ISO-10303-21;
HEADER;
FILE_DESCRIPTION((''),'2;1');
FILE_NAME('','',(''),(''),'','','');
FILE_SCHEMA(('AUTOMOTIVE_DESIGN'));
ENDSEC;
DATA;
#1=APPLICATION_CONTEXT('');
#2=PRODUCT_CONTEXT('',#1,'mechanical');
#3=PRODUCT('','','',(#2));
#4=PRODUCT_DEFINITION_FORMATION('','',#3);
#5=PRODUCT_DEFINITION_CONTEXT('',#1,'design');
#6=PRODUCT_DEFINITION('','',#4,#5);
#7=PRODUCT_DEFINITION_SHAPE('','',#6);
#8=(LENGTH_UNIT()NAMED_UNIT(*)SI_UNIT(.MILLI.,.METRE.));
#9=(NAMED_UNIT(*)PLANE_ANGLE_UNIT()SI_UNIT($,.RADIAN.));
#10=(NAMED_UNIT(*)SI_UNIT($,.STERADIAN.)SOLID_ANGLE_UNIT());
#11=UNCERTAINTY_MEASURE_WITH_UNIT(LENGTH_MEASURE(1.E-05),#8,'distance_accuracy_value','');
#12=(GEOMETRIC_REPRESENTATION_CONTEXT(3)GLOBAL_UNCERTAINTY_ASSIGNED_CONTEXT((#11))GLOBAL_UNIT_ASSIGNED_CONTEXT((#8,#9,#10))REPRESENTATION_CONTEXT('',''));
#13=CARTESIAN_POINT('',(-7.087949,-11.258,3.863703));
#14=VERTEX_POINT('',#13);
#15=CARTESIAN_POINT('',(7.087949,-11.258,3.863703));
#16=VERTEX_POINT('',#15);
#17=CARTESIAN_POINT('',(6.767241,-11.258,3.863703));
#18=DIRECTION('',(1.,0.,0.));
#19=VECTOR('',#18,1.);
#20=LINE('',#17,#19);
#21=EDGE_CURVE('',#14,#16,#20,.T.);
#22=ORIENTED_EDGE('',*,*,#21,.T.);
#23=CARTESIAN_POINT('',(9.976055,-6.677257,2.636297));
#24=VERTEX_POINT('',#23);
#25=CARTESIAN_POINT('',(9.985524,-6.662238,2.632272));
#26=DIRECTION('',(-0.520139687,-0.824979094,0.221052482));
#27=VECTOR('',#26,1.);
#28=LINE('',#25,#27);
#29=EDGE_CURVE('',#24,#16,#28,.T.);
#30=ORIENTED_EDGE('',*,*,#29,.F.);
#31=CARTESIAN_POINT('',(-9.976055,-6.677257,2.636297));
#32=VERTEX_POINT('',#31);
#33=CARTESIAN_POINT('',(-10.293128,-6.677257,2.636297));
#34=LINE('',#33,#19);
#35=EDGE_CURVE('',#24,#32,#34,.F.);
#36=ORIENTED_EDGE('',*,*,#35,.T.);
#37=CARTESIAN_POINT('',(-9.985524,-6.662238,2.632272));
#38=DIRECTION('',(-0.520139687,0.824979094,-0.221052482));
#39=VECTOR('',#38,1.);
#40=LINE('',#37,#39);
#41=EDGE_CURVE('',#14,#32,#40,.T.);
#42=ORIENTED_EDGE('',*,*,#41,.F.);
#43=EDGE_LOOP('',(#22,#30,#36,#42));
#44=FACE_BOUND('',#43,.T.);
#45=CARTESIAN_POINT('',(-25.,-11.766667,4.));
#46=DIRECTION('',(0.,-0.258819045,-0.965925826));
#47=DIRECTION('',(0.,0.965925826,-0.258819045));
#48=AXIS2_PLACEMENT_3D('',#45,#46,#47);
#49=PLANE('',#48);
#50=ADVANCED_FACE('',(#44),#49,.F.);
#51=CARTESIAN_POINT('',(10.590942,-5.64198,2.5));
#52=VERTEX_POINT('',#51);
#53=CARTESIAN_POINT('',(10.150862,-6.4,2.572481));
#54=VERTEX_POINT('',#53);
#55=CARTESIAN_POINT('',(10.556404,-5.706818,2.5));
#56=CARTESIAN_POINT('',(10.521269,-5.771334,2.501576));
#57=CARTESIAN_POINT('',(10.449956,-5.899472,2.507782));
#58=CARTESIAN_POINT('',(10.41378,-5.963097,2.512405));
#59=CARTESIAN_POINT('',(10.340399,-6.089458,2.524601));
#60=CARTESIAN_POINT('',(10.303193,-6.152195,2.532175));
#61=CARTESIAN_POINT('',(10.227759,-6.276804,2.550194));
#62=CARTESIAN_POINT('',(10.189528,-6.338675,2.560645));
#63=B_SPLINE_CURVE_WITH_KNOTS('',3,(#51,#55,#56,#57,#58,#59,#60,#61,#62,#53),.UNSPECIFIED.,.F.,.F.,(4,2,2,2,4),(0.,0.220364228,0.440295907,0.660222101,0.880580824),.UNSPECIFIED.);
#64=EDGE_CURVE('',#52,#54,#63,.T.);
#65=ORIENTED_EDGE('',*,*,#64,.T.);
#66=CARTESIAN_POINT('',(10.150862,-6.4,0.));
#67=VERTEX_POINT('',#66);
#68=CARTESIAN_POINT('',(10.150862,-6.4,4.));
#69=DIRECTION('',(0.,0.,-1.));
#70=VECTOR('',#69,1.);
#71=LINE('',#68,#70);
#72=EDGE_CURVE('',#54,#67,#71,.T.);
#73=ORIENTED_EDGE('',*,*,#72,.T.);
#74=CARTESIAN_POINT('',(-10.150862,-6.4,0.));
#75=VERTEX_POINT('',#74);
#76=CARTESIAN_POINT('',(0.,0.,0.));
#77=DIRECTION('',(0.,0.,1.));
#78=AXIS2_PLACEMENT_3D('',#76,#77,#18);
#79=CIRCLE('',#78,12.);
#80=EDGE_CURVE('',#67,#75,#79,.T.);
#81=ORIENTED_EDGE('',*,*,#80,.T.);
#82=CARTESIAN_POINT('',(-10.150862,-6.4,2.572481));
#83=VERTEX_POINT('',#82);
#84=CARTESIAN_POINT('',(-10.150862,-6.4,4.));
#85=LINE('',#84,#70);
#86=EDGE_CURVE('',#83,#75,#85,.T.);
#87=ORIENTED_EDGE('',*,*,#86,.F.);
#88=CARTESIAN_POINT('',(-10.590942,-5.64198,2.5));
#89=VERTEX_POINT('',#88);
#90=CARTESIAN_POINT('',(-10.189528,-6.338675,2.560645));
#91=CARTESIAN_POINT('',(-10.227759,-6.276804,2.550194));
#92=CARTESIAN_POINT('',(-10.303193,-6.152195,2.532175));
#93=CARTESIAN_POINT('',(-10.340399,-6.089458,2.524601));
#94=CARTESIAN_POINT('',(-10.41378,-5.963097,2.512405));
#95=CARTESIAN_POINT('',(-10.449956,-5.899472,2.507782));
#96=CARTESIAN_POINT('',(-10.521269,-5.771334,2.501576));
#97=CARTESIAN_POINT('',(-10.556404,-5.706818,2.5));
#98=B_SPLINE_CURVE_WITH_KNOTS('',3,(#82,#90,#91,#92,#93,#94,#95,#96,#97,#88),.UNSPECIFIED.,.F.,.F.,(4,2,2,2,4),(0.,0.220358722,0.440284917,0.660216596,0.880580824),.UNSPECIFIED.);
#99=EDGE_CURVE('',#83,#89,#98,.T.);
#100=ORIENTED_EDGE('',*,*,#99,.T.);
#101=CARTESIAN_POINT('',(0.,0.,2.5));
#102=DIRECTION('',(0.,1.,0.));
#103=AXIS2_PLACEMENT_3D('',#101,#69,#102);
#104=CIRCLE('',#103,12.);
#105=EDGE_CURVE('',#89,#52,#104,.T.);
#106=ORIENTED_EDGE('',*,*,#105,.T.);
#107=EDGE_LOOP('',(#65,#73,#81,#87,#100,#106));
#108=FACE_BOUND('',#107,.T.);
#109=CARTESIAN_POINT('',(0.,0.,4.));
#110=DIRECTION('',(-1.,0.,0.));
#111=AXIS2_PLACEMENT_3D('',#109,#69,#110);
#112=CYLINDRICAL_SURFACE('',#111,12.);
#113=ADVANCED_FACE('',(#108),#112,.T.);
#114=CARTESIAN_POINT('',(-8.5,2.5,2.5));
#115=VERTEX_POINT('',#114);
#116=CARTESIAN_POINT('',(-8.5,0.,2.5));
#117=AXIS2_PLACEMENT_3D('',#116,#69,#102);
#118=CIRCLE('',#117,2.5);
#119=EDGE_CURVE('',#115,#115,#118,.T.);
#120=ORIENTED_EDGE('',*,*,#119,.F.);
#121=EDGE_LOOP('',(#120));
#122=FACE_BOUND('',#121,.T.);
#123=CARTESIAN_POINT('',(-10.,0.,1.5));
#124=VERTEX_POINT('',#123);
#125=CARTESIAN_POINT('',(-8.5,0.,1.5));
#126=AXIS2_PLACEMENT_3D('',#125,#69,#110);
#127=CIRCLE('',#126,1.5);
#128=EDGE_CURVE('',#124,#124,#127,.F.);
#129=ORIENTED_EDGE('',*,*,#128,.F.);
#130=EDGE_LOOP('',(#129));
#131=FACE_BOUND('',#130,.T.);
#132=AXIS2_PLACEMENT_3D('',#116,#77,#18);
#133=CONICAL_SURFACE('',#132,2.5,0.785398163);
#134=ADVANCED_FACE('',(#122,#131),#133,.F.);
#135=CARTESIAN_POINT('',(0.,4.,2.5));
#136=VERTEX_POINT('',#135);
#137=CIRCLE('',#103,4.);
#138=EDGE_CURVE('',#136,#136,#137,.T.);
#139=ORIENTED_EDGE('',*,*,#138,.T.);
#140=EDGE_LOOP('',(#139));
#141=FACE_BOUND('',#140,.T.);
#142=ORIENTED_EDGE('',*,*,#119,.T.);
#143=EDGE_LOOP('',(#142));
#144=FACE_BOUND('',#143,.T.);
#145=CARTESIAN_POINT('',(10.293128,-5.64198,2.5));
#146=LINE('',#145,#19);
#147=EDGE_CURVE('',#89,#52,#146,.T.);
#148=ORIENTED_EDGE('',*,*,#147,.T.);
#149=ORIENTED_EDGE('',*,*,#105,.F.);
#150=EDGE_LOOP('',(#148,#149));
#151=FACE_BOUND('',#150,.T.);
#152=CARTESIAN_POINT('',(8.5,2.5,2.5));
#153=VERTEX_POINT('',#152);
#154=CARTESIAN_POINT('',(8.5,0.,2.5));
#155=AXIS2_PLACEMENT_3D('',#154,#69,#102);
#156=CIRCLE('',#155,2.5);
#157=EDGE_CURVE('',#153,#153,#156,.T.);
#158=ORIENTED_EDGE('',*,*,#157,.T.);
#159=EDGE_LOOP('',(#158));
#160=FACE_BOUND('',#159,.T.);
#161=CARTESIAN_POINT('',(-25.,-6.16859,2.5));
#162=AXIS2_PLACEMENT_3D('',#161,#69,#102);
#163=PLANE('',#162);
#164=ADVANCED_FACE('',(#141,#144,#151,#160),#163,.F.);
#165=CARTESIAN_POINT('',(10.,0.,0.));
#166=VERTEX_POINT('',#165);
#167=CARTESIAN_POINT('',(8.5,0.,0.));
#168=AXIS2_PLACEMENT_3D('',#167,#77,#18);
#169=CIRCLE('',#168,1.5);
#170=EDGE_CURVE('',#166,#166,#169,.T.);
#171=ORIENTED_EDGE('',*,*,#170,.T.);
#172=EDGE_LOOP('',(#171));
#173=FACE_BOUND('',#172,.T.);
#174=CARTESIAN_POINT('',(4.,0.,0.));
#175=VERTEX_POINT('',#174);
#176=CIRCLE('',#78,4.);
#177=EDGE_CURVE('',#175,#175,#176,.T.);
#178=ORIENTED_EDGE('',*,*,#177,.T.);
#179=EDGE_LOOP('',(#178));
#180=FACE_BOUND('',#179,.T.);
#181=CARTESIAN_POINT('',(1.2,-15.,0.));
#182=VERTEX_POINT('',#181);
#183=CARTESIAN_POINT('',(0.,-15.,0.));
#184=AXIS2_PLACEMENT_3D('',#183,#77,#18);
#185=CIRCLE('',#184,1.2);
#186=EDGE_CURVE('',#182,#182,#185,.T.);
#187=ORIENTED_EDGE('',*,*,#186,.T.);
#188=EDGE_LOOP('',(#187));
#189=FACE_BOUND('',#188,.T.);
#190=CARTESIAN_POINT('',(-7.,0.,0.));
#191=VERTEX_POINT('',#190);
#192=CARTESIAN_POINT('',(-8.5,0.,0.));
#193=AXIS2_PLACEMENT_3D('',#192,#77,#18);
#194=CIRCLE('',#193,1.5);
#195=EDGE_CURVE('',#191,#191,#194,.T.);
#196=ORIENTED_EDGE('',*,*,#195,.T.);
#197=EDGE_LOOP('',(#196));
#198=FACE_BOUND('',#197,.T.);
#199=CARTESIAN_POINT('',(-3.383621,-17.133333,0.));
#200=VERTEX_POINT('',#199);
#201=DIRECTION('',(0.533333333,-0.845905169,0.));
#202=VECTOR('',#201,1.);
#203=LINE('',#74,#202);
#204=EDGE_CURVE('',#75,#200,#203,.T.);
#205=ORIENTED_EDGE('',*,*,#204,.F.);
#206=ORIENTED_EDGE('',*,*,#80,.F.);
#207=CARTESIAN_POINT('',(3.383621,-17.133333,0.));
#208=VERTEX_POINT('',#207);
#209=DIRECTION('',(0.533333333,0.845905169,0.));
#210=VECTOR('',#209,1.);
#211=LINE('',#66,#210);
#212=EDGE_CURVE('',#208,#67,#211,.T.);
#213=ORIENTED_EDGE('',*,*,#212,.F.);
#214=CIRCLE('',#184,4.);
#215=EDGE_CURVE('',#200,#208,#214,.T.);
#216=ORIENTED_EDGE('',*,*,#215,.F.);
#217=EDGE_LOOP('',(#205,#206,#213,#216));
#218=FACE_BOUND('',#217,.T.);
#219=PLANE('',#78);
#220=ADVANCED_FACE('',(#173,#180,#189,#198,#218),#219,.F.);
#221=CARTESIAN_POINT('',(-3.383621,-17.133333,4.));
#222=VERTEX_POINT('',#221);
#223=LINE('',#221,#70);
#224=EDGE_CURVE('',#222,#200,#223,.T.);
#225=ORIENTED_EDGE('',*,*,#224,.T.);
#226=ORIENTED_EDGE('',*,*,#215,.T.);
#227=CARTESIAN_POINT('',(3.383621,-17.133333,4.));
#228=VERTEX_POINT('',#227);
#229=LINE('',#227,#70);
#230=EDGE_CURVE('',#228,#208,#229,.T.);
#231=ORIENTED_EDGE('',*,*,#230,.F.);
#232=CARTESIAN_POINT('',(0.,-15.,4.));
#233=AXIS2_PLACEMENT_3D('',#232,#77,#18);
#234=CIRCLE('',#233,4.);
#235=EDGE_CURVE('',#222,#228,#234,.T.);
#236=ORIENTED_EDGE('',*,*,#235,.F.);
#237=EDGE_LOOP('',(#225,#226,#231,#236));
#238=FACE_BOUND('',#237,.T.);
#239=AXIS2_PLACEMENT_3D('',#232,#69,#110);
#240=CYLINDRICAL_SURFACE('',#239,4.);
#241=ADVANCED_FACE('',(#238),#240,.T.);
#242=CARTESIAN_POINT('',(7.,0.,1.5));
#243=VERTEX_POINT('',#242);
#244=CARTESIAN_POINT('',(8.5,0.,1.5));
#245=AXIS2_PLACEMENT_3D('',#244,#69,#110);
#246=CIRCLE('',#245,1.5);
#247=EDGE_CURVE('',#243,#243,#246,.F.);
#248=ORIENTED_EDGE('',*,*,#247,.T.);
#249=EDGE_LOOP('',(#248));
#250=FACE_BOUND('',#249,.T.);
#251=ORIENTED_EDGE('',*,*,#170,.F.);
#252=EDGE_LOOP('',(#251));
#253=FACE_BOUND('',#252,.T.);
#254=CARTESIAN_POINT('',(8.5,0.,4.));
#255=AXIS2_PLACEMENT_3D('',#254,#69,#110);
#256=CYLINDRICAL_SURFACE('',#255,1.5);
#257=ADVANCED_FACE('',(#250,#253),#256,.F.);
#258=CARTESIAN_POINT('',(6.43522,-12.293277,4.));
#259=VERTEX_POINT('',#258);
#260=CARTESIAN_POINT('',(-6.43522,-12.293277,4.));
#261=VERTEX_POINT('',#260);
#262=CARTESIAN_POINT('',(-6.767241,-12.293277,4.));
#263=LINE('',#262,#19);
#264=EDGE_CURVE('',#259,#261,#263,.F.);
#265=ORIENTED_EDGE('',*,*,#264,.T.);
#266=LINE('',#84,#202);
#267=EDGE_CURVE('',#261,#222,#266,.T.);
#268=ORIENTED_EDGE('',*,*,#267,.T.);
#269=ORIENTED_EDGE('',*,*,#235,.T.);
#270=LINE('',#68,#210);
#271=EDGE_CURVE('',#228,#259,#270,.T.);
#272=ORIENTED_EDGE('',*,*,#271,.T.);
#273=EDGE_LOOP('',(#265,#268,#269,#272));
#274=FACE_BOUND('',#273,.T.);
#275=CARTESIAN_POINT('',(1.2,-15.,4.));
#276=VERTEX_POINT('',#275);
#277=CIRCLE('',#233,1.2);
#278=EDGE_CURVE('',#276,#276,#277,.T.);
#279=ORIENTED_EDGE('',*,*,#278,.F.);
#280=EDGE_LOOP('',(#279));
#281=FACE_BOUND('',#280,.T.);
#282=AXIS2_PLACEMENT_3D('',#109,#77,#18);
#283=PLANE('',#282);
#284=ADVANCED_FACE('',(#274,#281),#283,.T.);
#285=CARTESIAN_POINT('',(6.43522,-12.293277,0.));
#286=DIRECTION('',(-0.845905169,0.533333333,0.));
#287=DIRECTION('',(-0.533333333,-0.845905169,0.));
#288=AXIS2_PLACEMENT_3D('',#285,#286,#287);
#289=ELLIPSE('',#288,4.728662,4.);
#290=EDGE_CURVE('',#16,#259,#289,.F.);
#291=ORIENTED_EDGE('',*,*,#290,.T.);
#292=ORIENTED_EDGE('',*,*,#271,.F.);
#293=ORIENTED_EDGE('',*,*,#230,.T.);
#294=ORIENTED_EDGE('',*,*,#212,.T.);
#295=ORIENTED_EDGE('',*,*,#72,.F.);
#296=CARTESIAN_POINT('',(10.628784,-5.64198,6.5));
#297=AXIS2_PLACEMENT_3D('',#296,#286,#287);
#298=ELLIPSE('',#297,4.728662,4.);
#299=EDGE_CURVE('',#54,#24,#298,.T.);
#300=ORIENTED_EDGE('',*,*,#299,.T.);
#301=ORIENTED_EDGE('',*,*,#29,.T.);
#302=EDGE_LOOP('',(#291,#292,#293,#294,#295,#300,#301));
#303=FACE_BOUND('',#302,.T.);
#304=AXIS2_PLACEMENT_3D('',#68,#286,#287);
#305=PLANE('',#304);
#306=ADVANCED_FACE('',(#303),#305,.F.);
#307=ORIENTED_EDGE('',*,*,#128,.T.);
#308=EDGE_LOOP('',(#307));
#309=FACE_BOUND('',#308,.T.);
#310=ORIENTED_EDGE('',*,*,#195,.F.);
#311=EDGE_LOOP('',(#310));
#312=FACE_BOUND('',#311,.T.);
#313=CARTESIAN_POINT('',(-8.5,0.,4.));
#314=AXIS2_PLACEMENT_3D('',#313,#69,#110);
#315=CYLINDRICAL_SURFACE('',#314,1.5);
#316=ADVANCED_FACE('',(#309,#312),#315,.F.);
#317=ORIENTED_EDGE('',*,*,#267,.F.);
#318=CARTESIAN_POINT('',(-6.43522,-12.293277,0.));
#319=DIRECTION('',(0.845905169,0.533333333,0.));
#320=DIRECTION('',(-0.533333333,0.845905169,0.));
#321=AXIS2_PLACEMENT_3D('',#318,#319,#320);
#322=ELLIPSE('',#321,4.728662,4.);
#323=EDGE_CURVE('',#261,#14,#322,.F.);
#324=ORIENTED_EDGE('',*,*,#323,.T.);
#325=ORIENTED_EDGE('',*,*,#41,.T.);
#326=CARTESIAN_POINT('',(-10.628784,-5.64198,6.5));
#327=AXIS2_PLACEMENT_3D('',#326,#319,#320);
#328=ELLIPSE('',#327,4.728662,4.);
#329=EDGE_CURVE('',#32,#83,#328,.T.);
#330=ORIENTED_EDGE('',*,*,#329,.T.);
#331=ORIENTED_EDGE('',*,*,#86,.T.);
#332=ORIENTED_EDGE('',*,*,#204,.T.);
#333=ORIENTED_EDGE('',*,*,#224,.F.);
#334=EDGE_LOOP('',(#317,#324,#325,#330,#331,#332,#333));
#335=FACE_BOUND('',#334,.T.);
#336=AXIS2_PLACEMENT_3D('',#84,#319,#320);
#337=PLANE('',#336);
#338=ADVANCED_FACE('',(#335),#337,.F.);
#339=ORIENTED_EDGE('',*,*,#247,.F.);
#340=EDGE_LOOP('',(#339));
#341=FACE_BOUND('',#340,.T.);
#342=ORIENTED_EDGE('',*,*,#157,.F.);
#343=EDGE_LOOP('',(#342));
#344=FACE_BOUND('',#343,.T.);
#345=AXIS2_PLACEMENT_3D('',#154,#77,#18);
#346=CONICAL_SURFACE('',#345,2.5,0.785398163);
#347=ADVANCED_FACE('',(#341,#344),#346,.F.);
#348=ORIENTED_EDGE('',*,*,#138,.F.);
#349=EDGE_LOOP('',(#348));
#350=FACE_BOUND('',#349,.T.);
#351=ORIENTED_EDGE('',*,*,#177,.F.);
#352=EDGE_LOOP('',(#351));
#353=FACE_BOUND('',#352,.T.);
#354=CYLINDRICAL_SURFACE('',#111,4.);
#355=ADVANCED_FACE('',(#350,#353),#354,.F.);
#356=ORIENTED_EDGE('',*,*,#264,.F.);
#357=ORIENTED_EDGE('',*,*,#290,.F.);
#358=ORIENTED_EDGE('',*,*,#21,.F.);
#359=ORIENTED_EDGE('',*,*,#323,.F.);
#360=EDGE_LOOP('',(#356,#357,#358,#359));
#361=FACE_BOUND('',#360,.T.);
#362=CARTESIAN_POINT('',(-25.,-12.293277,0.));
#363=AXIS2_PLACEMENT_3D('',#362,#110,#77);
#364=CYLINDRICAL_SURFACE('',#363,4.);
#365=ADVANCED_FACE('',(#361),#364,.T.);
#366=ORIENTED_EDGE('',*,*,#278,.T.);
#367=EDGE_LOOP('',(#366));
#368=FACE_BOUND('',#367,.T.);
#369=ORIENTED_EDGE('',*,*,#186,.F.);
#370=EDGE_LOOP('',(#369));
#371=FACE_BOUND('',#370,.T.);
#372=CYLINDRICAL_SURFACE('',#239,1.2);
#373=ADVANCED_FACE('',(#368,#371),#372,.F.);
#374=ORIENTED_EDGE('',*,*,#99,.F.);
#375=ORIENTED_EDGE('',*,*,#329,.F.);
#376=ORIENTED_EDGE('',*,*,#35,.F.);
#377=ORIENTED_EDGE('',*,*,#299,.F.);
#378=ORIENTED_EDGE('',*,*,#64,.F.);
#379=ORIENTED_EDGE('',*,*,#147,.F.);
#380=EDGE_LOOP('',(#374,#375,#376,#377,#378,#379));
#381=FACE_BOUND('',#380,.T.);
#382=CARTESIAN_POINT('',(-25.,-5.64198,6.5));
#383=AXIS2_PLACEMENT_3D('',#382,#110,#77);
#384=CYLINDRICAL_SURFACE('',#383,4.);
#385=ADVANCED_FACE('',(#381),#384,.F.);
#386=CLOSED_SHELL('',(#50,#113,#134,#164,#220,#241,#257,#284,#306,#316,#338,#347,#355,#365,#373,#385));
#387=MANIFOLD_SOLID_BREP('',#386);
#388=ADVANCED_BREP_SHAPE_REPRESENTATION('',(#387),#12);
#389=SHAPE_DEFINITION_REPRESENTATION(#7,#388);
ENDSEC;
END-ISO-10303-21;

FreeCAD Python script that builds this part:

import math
import FreeCAD as App
import Part
import Sketcher
Q = App.Units.Quantity


def edges_at(feature, points):
    """Names of the edges that pass closest to the given points."""
    edges = feature.Shape.Edges
    near = lambda p: min(range(len(edges)), key=lambda i: edges[i].distToShape(Part.Vertex(*p))[0])
    return sorted({f"Edge{near(p) + 1}" for p in points})

doc = App.newDocument("Part")
body = doc.addObject("PartDesign::Body", "Body")

# Sketch on XY plane
sketch1 = body.newObject("Sketcher::SketchObject", "Sketch")
sketch1.AttachmentSupport = (doc.getObject("XY_Plane"), [""])
sketch1.MapMode = "FlatFace"
sketch1.addGeometry([
    Part.LineSegment(App.Vector(-10.2, -6.4, 0), App.Vector(-3.4, -17.1, 0)),  # 0
    Part.ArcOfCircle(Part.Circle(App.Vector(0, -15, 0), App.Vector(0, 0, 1), 4), math.radians(-148), math.radians(-32)),  # 1
    Part.LineSegment(App.Vector(3.4, -17.1, 0), App.Vector(10.2, -6.4, 0)),  # 2
    Part.ArcOfCircle(Part.Circle(App.Vector(0, 0, 0), App.Vector(0, 0, 1), 12), math.radians(-32), math.radians(212)),  # 3
    Part.Circle(App.Vector(0, -15, 0), App.Vector(0, 0, 1), 1.2),  # 4
    Part.Circle(App.Vector(-8.5, 0, 0), App.Vector(0, 0, 1), 1.5),  # 5
    Part.Circle(App.Vector(0, 0, 0), App.Vector(0, 0, 1), 4),  # 6
    Part.Circle(App.Vector(8.5, 0, 0), App.Vector(0, 0, 1), 1.5),  # 7
], False)
sketch1.addConstraint([
    Sketcher.Constraint("Tangent", 0, 2, 1, 1),
    Sketcher.Constraint("Tangent", 1, 2, 2, 1),
    Sketcher.Constraint("Tangent", 2, 2, 3, 1),
    Sketcher.Constraint("Tangent", 3, 2, 0, 1),
    Sketcher.Constraint("Coincident", 3, 3, -1, 1),
    Sketcher.Constraint("Coincident", 6, 3, -1, 1),
    Sketcher.Constraint("Coincident", 4, 3, 1, 3),
    Sketcher.Constraint("Equal", 1, 6),
    Sketcher.Constraint("Equal", 5, 7),
    Sketcher.Constraint("Symmetric", 5, 3, 7, 3, -1, 1),
    Sketcher.Constraint("PointOnObject", 1, 3, -2),
    Sketcher.Constraint("PointOnObject", 5, 3, -1),
    Sketcher.Constraint("Diameter", 5, Q("3 mm")),
    Sketcher.Constraint("Diameter", 6, Q("8 mm")),
    Sketcher.Constraint("Radius", 3, Q("12 mm")),
    Sketcher.Constraint("Diameter", 4, Q("2.4 mm")),
    Sketcher.Constraint("DistanceY", 1, 3, -1, 1, Q("15 mm")),
    Sketcher.Constraint("DistanceX", 5, 3, 7, 3, Q("17 mm")),
])
pad1 = body.newObject("PartDesign::Pad", "Pad")
pad1.Profile = sketch1
pad1.Length = 4

# Sketch on YZ plane
sketch2 = body.newObject("Sketcher::SketchObject", "Sketch001")
sketch2.AttachmentSupport = (doc.getObject("YZ_Plane"), [""])
sketch2.MapMode = "FlatFace"
sketch2.addGeometry([
    Part.LineSegment(App.Vector(-11.8, 4, 0), App.Vector(-6.2, 2.5, 0)),
    Part.LineSegment(App.Vector(-6.2, 2.5, 0), App.Vector(12, 2.5, 0)),
    Part.LineSegment(App.Vector(12, 2.5, 0), App.Vector(12, 4, 0)),
    Part.LineSegment(App.Vector(12, 4, 0), App.Vector(-11.8, 4, 0)),
], False)
sketch2.addConstraint([
    Sketcher.Constraint("Coincident", 0, 2, 1, 1),
    Sketcher.Constraint("Coincident", 1, 2, 2, 1),
    Sketcher.Constraint("Coincident", 2, 2, 3, 1),
    Sketcher.Constraint("Coincident", 3, 2, 0, 1),
    Sketcher.Constraint("Horizontal", 1),
    Sketcher.Constraint("Vertical", 2),
    Sketcher.Constraint("Horizontal", 3),
    Sketcher.Constraint("Angle", 0, Q("-15 deg")),
    Sketcher.Constraint("DistanceY", 2, 1, 2, 2, Q("1.5 mm")),
    Sketcher.Constraint("DistanceX", -1, 1, 1, 2, Q("12 mm")),
    Sketcher.Constraint("DistanceY", -1, 1, 2, 2, Q("4 mm")),
    Sketcher.Constraint("DistanceX", 1, 1, 1, 2, Q("18.16859 mm")),
])
pocket1 = body.newObject("PartDesign::Pocket", "Pocket")
pocket1.Profile = sketch2
pocket1.Length = 50
pocket1.Midplane = True
doc.recompute()

chamfer = body.newObject("PartDesign::Chamfer", "Chamfer")
chamfer.Base = (pocket1, edges_at(pocket1, [(-10, 0, 2.5), (7, 0, 2.5)]))
chamfer.Size = 1
doc.recompute()

fillet = body.newObject("PartDesign::Fillet", "Fillet")
fillet.Base = (chamfer, edges_at(chamfer, [(0, -6.169, 2.5), (0, -11.767, 4)]))
fillet.Radius = 4

doc.recompute()
